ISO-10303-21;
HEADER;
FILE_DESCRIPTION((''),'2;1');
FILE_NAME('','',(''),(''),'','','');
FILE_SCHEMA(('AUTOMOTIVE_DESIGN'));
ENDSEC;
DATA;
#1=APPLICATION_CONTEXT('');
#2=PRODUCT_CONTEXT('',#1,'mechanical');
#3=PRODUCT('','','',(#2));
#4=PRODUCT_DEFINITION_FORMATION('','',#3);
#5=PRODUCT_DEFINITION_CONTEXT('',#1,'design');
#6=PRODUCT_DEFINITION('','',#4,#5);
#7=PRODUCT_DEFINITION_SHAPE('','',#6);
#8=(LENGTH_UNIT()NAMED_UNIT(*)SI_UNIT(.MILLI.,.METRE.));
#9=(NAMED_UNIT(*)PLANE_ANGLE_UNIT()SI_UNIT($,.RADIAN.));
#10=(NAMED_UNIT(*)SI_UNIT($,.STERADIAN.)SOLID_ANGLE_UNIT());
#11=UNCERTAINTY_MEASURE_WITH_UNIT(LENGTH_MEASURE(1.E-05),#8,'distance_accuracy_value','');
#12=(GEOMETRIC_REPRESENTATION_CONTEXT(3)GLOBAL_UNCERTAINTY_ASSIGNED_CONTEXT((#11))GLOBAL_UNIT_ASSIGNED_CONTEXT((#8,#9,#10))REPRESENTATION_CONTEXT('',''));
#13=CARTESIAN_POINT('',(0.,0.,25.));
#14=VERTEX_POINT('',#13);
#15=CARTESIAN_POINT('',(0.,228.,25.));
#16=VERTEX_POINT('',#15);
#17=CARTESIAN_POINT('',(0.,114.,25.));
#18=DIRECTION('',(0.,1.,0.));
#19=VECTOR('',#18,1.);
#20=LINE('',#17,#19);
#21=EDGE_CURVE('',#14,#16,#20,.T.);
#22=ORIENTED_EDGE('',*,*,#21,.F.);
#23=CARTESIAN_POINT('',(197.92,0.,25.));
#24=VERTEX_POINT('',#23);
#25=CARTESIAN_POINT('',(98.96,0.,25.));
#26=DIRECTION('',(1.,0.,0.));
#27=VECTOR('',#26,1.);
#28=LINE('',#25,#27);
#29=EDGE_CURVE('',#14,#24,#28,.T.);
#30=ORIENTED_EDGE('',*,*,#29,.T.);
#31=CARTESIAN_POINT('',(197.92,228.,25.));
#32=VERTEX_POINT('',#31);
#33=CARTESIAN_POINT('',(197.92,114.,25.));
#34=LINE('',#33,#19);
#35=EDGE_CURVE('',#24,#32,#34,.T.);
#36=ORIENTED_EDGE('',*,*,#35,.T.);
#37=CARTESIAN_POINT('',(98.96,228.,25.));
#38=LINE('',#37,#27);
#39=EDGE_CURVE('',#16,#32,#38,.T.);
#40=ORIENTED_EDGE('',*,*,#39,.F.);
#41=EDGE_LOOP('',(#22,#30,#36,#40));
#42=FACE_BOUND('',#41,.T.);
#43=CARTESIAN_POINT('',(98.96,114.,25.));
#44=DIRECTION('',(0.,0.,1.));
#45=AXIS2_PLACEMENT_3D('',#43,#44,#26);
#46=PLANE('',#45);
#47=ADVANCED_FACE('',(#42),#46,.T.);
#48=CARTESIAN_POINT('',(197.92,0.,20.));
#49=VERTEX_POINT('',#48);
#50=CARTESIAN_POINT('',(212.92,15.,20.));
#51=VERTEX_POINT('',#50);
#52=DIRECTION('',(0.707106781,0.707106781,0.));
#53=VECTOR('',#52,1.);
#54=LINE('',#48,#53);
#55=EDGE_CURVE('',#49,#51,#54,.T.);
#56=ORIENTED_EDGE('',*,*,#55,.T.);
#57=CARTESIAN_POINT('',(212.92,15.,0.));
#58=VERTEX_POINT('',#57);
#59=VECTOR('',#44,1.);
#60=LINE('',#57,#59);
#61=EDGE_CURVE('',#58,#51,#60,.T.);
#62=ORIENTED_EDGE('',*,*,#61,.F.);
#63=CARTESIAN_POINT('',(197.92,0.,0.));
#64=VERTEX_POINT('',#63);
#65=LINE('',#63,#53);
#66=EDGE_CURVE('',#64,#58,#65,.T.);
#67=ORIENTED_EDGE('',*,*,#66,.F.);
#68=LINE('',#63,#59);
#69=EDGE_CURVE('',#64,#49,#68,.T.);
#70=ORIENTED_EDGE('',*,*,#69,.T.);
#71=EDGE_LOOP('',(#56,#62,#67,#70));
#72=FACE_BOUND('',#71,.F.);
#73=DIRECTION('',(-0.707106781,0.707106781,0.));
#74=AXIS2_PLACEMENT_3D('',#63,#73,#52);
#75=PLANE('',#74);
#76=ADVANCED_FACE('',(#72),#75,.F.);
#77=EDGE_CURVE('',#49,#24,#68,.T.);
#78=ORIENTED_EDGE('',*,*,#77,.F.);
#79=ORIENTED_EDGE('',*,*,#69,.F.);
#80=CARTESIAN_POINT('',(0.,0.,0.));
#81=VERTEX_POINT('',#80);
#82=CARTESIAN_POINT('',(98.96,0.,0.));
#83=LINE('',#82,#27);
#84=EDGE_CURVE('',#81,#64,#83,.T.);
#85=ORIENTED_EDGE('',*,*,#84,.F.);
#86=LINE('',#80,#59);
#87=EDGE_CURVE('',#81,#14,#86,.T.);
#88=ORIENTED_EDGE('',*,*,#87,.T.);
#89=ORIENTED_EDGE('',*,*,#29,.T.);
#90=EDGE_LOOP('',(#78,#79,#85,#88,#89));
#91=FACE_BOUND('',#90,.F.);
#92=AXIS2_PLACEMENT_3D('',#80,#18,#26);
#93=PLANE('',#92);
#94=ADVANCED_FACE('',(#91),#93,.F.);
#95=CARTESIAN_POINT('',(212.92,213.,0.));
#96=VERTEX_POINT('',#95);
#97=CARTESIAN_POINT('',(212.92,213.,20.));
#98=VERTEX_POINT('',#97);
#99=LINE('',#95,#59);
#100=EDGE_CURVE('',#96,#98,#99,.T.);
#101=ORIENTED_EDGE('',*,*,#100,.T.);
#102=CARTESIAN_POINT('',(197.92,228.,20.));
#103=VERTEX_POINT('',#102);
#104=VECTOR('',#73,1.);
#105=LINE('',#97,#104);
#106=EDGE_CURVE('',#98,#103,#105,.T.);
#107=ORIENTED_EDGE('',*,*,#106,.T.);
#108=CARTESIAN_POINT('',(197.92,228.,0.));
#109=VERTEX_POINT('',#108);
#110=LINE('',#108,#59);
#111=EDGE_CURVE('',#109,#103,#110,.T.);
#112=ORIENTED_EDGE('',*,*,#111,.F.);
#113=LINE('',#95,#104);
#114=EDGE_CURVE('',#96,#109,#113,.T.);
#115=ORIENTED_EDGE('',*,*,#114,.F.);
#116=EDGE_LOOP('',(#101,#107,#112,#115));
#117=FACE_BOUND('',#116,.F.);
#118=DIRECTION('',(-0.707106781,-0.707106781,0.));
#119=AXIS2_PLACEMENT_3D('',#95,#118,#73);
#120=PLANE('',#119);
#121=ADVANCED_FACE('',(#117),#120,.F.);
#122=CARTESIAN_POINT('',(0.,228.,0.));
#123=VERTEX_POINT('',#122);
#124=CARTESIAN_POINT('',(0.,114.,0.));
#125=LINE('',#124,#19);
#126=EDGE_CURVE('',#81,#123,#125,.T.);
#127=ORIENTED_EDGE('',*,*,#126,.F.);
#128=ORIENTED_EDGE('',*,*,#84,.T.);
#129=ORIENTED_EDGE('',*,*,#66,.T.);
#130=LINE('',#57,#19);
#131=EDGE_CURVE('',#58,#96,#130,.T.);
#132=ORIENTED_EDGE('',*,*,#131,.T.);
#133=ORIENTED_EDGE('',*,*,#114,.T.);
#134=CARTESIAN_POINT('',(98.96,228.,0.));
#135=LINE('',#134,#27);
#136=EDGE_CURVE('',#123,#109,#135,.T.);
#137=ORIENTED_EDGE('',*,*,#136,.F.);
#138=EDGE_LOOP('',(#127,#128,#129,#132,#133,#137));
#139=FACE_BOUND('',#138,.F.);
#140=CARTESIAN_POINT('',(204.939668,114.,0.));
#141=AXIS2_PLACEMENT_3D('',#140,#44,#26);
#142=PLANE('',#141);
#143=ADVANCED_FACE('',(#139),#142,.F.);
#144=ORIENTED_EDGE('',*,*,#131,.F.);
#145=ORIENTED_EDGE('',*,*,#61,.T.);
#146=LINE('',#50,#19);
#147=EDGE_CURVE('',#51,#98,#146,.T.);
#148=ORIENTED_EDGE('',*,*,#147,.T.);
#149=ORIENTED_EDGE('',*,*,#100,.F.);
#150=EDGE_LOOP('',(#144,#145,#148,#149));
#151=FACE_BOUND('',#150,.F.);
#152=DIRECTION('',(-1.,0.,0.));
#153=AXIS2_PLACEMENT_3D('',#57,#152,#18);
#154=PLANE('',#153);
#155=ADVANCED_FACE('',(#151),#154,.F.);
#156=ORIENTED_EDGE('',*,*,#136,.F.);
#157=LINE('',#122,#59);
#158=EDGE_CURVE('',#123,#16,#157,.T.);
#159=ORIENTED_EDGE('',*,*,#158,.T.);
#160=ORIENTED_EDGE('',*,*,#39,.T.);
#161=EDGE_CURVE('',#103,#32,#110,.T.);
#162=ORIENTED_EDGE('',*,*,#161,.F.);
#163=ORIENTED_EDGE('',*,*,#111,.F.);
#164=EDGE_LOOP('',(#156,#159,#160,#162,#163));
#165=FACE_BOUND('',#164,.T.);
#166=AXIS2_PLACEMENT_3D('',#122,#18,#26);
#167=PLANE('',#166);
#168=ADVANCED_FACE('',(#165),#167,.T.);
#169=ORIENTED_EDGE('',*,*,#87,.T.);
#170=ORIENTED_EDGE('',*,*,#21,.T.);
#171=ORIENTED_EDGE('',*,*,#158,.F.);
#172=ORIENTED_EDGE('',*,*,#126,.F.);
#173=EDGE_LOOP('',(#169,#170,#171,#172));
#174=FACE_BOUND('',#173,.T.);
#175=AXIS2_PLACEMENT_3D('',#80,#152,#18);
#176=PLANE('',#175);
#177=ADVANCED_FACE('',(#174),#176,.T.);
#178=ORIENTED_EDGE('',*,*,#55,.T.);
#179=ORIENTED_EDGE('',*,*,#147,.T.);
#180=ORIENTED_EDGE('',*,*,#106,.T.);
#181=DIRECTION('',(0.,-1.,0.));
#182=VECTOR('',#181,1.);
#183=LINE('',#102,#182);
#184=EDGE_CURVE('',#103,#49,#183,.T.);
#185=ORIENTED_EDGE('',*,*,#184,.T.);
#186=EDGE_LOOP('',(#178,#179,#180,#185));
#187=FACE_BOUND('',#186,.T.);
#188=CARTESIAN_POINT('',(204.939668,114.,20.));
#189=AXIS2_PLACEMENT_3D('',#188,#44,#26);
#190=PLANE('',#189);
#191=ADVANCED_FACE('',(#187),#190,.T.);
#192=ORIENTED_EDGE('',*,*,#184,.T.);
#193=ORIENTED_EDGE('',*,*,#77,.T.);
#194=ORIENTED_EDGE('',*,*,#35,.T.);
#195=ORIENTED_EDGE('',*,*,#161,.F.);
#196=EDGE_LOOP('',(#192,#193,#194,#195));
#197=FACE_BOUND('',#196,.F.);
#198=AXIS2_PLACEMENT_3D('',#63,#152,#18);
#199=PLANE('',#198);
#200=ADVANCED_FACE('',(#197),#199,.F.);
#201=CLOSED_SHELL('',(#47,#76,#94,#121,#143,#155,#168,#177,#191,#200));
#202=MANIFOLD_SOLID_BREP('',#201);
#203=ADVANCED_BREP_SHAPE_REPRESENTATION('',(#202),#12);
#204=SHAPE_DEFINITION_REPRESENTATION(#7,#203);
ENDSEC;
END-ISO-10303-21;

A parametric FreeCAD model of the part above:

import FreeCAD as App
import Part
import Sketcher
from FreeCAD import Vector
Q = App.Units.Quantity

doc = App.newDocument("Part")
body = doc.addObject("PartDesign::Body", "Body")

sketch1 = body.newObject("Sketcher::SketchObject", "Sketch")
sketch1.AttachmentSupport = (doc.getObject("XY_Plane"), [""])
sketch1.MapMode = "FlatFace"
sketch1.addGeometry([
    Part.LineSegment(Vector(0, 228, 0), Vector(0, 0, 0)),
    Part.LineSegment(Vector(0, 0, 0), Vector(198, 0, 0)),
    Part.LineSegment(Vector(198, 0, 0), Vector(198, 228, 0)),
    Part.LineSegment(Vector(198, 228, 0), Vector(0, 228, 0)),
], False)
sketch1.addConstraint([
    Sketcher.Constraint("Coincident", 0, 2, 1, 1),
    Sketcher.Constraint("Coincident", 1, 2, 2, 1),
    Sketcher.Constraint("Coincident", 2, 2, 3, 1),
    Sketcher.Constraint("Coincident", 3, 2, 0, 1),
    Sketcher.Constraint("Vertical", 0),
    Sketcher.Constraint("Horizontal", 1),
    Sketcher.Constraint("Vertical", 2),
    Sketcher.Constraint("Horizontal", 3),
    Sketcher.Constraint("Coincident", 0, 2, -1, 1),
    Sketcher.Constraint("DistanceY", 0, 2, 0, 1, Q("228 mm")),
    Sketcher.Constraint("DistanceX", 1, 1, 1, 2, Q("197.92 mm")),
])
pad1 = body.newObject("PartDesign::Pad", "Pad")
pad1.Profile = sketch1
pad1.Length = 25

sketch2 = body.newObject("Sketcher::SketchObject", "Sketch001")
sketch2.AttachmentSupport = (doc.getObject("XY_Plane"), [""])
sketch2.MapMode = "FlatFace"
sketch2.addGeometry([
    Part.LineSegment(Vector(198, 228, 0), Vector(198, 0, 0)),
    Part.LineSegment(Vector(198, 0, 0), Vector(213, 15, 0)),
    Part.LineSegment(Vector(213, 15, 0), Vector(213, 213, 0)),
    Part.LineSegment(Vector(213, 213, 0), Vector(198, 228, 0)),
], False)
sketch2.addConstraint([
    Sketcher.Constraint("Coincident", 0, 2, 1, 1),
    Sketcher.Constraint("Coincident", 1, 2, 2, 1),
    Sketcher.Constraint("Coincident", 2, 2, 3, 1),
    Sketcher.Constraint("Coincident", 3, 2, 0, 1),
    Sketcher.Constraint("Vertical", 0),
    Sketcher.Constraint("Vertical", 2),
    Sketcher.Constraint("PointOnObject", 0, 2, -1),
    Sketcher.Constraint("Perpendicular", 1, 3),
    Sketcher.Constraint("Equal", 1, 3),
    Sketcher.Constraint("DistanceY", 0, 2, 0, 1, Q("228 mm")),
    Sketcher.Constraint("DistanceY", 2, 1, 2, 2, Q("198 mm")),
    Sketcher.Constraint("DistanceX", -1, 1, 0, 2, Q("197.92 mm")),
])
pad2 = body.newObject("PartDesign::Pad", "Pad001")
pad2.Profile = sketch2
pad2.Length = 20

doc.recompute()
